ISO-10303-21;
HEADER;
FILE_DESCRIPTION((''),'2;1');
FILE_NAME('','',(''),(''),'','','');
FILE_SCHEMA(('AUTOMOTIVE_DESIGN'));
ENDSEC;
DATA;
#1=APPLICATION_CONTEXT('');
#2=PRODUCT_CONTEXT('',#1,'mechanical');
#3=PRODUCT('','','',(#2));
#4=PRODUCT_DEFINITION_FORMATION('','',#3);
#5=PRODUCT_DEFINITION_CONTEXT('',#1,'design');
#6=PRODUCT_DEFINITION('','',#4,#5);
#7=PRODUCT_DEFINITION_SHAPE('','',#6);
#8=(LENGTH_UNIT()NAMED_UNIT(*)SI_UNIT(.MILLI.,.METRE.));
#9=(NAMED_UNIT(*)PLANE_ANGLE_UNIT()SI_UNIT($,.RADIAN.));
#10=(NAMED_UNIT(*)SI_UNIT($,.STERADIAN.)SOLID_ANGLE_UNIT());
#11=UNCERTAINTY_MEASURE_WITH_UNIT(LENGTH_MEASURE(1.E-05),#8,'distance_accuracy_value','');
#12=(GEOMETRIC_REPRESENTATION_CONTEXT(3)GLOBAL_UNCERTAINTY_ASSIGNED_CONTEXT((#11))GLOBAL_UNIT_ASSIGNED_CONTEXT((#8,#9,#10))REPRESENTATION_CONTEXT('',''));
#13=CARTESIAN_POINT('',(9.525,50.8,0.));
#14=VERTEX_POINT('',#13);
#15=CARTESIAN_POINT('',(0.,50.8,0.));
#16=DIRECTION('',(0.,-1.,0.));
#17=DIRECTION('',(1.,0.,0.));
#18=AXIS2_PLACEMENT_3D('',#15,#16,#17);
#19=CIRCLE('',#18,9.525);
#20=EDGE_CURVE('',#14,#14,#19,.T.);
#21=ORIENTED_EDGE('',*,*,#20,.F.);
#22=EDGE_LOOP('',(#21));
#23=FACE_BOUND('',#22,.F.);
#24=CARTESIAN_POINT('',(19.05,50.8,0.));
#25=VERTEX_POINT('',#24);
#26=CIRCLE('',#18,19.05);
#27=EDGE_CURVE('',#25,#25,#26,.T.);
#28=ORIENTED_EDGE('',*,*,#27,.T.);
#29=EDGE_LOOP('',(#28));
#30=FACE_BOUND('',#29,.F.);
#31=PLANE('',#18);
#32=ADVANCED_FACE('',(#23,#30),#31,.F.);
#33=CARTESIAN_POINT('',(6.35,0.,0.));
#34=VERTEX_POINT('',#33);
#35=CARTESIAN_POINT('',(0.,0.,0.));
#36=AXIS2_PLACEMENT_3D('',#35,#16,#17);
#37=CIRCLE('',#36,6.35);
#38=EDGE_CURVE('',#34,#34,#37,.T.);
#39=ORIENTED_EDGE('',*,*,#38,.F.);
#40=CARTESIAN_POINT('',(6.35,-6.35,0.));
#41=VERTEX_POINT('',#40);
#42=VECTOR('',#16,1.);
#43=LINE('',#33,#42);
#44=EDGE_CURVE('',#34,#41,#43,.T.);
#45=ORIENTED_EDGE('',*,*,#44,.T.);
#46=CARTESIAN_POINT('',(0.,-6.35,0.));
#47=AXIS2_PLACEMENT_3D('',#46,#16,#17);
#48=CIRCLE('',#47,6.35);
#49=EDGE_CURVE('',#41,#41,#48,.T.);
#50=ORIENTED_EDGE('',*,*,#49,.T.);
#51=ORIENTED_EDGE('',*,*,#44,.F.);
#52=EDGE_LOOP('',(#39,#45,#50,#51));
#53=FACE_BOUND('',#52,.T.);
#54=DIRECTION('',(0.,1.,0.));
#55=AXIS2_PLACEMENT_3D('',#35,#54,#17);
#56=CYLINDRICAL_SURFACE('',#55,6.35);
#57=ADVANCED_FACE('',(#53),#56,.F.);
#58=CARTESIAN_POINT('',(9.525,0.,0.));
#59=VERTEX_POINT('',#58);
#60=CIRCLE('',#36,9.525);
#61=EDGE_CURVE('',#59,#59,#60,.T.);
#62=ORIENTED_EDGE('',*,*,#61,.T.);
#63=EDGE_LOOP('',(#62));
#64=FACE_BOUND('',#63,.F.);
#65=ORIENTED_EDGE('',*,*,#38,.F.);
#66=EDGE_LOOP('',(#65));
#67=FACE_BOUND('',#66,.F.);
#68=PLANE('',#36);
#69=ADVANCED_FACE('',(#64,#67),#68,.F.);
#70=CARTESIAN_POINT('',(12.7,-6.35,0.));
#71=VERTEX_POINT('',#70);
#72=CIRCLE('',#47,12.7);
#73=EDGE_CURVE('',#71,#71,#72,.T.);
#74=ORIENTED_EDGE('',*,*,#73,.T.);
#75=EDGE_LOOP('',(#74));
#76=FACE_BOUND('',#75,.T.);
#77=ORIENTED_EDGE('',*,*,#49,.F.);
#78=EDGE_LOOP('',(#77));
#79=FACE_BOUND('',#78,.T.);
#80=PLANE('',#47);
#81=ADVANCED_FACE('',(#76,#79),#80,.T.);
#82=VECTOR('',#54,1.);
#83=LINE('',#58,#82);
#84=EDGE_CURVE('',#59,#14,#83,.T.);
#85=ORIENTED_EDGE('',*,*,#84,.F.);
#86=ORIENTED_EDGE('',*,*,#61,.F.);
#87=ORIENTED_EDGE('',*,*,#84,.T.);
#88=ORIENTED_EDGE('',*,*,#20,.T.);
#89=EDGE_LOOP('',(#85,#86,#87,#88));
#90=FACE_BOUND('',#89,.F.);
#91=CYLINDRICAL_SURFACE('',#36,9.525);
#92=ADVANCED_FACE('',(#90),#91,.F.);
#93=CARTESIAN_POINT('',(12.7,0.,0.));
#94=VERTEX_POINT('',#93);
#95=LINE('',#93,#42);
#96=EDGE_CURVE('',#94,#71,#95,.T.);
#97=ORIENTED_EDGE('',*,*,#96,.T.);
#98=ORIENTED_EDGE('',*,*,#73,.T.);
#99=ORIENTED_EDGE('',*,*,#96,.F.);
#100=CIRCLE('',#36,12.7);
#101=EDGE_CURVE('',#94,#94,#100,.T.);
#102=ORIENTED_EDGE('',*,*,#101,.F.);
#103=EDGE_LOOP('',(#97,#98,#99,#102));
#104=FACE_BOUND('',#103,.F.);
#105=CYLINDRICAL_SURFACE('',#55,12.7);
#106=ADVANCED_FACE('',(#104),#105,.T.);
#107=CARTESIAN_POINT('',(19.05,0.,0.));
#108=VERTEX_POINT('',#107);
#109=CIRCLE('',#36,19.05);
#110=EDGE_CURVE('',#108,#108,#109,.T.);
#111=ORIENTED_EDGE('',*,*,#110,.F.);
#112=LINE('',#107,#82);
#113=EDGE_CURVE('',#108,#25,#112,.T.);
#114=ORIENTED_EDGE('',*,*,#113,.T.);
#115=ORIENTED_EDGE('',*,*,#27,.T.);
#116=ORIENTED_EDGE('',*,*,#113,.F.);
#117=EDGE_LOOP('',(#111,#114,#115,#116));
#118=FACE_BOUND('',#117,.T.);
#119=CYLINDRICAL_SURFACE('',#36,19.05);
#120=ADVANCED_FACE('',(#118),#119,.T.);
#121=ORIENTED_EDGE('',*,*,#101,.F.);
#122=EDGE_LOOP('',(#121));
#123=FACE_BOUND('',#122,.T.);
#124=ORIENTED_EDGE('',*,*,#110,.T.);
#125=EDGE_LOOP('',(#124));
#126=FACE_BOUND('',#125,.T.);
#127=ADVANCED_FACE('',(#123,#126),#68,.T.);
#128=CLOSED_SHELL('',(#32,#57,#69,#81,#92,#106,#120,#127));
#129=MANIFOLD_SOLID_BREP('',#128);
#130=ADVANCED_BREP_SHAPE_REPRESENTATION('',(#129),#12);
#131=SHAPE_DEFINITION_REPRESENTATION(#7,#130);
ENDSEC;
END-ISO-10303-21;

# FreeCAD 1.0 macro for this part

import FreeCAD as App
import Part
import Sketcher
Q = App.Units.Quantity

doc = App.newDocument("Part")
params = doc.addObject("Spreadsheet::Sheet", "Params")
for row, (alias, value) in enumerate([
    ("sketch1_diameter", "1 in"),
    ("sketch1_diameter2", "0.5 in"),
    ("pad1_length", "0.25 in"),
    ("sketch2_diameter", "1.5 in"),
    ("sketch2_diameter2", "0.75 in"),
    ("pad2_length", "2 in"),
], start=1):
    params.set(f"A{row}", alias)
    params.set(f"B{row}", "=" + value)
    params.setAlias(f"B{row}", alias)

body = doc.addObject("PartDesign::Body", "Body")

sketch1 = body.newObject("Sketcher::SketchObject", "Sketch")
sketch1.AttachmentSupport = (doc.getObject("XZ_Plane"), [""])
sketch1.MapMode = "FlatFace"
sketch1.addGeometry(Part.Circle(App.Vector(0, 0, 0), App.Vector(0, 0, 1), 13), False)
sketch1.addGeometry(Part.Circle(App.Vector(0, 0, 0), App.Vector(0, 0, 1), 6), False)
sketch1.addConstraint(Sketcher.Constraint("Coincident", 0, 3, -1, 1))
sketch1.addConstraint(Sketcher.Constraint("Coincident", 1, 3, -1, 1))
sketch1.addConstraint(Sketcher.Constraint("Diameter", 0, Q("1 in")))
sketch1.addConstraint(Sketcher.Constraint("Diameter", 1, Q("0.5 in")))
sketch1.setExpression("Constraints[2]", "Params.sketch1_diameter")
sketch1.setExpression("Constraints[3]", "Params.sketch1_diameter2")
pad1 = body.newObject("PartDesign::Pad", "Pad")
pad1.Profile = sketch1
pad1.setExpression("Length", "Params.pad1_length")

sketch2 = body.newObject("Sketcher::SketchObject", "Sketch001")
sketch2.AttachmentSupport = (doc.getObject("XZ_Plane"), [""])
sketch2.MapMode = "FlatFace"
sketch2.addGeometry(Part.Circle(App.Vector(0, 0, 0), App.Vector(0, 0, 1), 19), False)
sketch2.addGeometry(Part.Circle(App.Vector(0, 0, 0), App.Vector(0, 0, 1), 10), False)
sketch2.addConstraint(Sketcher.Constraint("Coincident", 0, 3, -1, 1))
sketch2.addConstraint(Sketcher.Constraint("Coincident", 1, 3, -1, 1))
sketch2.addConstraint(Sketcher.Constraint("Diameter", 0, Q("1.5 in")))
sketch2.addConstraint(Sketcher.Constraint("Diameter", 1, Q("0.75 in")))
sketch2.setExpression("Constraints[2]", "Params.sketch2_diameter")
sketch2.setExpression("Constraints[3]", "Params.sketch2_diameter2")
pad2 = body.newObject("PartDesign::Pad", "Pad001")
pad2.Profile = sketch2
pad2.setExpression("Length", "Params.pad2_length")
pad2.Reversed = True

doc.recompute()
